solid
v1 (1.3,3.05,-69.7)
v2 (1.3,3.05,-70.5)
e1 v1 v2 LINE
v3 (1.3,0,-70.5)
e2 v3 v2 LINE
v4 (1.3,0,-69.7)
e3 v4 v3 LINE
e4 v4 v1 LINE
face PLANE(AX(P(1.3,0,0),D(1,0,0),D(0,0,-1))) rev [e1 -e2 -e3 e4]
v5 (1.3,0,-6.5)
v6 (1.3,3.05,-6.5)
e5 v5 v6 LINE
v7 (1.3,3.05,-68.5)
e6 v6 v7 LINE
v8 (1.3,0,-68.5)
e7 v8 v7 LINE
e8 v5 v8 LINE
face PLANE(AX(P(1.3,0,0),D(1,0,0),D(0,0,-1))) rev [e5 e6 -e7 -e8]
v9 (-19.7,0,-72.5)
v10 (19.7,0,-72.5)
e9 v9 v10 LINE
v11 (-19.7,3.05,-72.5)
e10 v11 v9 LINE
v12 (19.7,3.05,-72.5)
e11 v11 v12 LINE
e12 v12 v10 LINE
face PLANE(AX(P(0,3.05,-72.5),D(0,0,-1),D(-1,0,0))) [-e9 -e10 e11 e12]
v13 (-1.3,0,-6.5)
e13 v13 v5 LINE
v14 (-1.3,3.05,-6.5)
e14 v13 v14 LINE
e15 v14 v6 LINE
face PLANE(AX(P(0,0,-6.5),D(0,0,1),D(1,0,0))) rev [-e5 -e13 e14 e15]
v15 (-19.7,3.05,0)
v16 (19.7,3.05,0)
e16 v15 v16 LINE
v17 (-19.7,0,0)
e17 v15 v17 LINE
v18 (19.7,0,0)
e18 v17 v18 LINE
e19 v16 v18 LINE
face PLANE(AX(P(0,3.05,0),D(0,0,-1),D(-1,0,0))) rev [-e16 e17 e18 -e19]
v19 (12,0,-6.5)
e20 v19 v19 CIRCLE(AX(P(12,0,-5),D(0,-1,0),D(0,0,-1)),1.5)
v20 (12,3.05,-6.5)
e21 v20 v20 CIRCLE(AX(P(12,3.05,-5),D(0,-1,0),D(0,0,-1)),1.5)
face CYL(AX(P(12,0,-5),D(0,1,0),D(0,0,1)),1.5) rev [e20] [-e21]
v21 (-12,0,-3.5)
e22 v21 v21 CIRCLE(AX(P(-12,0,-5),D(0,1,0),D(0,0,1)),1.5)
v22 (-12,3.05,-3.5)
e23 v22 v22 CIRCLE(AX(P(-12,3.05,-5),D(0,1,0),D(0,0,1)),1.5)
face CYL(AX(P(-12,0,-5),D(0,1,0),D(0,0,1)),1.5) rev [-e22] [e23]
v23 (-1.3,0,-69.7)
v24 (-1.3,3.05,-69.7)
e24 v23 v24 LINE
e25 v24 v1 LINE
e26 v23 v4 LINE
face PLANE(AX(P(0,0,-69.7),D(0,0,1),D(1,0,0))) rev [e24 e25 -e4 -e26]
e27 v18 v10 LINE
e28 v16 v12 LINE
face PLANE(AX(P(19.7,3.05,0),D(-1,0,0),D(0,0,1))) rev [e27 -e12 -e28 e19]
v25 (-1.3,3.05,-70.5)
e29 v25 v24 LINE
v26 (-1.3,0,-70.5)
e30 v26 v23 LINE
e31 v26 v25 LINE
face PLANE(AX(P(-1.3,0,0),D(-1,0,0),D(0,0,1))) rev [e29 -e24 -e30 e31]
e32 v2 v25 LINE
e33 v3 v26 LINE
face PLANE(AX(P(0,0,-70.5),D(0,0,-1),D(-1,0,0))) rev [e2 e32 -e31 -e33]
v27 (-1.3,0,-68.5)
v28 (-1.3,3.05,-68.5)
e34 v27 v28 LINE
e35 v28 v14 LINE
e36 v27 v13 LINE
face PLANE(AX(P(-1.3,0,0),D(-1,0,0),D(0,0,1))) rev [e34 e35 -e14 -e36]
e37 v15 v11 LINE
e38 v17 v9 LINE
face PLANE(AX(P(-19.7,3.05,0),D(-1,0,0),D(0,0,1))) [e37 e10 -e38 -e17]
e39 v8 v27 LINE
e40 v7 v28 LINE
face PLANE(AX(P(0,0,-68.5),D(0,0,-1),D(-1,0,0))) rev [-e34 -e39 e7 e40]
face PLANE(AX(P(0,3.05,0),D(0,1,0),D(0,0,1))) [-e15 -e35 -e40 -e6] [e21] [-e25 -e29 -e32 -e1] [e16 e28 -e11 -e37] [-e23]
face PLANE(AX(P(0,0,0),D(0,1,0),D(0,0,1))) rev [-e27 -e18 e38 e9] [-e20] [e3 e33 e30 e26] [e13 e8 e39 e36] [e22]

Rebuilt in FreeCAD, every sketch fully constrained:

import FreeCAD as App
import Part
import Sketcher

V = App.Vector

doc = App.newDocument("Part")
body = doc.addObject("PartDesign::Body", "Body")

sketch1 = body.newObject("Sketcher::SketchObject", "Sketch")
sketch1.AttachmentSupport = (doc.getObject("XZ_Plane"), [""])
sketch1.MapMode = "FlatFace"
sketch1.addGeometry(Part.LineSegment(V(-20, -72, 0), V(-20, 0, 0)), False)
sketch1.addGeometry(Part.LineSegment(V(-20, 0, 0), V(20, 0, 0)), False)
sketch1.addGeometry(Part.LineSegment(V(20, 0, 0), V(20, -72, 0)), False)
sketch1.addGeometry(Part.LineSegment(V(20, -72, 0), V(-20, -72, 0)), False)
sketch1.addConstraint(Sketcher.Constraint("Coincident", 0, 2, 1, 1))
sketch1.addConstraint(Sketcher.Constraint("Coincident", 1, 2, 2, 1))
sketch1.addConstraint(Sketcher.Constraint("Coincident", 2, 2, 3, 1))
sketch1.addConstraint(Sketcher.Constraint("Coincident", 3, 2, 0, 1))
sketch1.addConstraint(Sketcher.Constraint("Vertical", 0))
sketch1.addConstraint(Sketcher.Constraint("Horizontal", 1))
sketch1.addConstraint(Sketcher.Constraint("Vertical", 2))
sketch1.addConstraint(Sketcher.Constraint("Horizontal", 3))
sketch1.addConstraint(Sketcher.Constraint("Symmetric", 0, 2, 1, 2, -1, 1))
sketch1.addConstraint(Sketcher.Constraint("DistanceX", 1, 1, 1, 2, 39.4))
sketch1.addConstraint(Sketcher.Constraint("DistanceY", 0, 1, 0, 2, 72.5))
pad1 = body.newObject("PartDesign::Pad", "Pad")
pad1.Profile = sketch1
pad1.Length = 3.05
pad1.Reversed = True

sketch2 = body.newObject("Sketcher::SketchObject", "Sketch001")
sketch2.AttachmentSupport = (doc.getObject("XZ_Plane"), [""])
sketch2.MapMode = "FlatFace"
sketch2.AttachmentOffset = App.Placement(V(0, 0, -3.05), App.Rotation())
sketch2.addGeometry(Part.LineSegment(V(-1.3, -70.5, 0), V(-1.3, -69.7, 0)), False)
sketch2.addGeometry(Part.LineSegment(V(-1.3, -69.7, 0), V(1.3, -69.7, 0)), False)
sketch2.addGeometry(Part.LineSegment(V(1.3, -69.7, 0), V(1.3, -70.5, 0)), False)
sketch2.addGeometry(Part.LineSegment(V(1.3, -70.5, 0), V(-1.3, -70.5, 0)), False)
sketch2.addGeometry(Part.LineSegment(V(-1.3, -68.5, 0), V(-1.3, -6.5, 0)), False)
sketch2.addGeometry(Part.LineSegment(V(-1.3, -6.5, 0), V(1.3, -6.5, 0)), False)
sketch2.addGeometry(Part.LineSegment(V(1.3, -6.5, 0), V(1.3, -68.5, 0)), False)
sketch2.addGeometry(Part.LineSegment(V(1.3, -68.5, 0), V(-1.3, -68.5, 0)), False)
sketch2.addConstraint(Sketcher.Constraint("Coincident", 0, 2, 1, 1))
sketch2.addConstraint(Sketcher.Constraint("Coincident", 1, 2, 2, 1))
sketch2.addConstraint(Sketcher.Constraint("Coincident", 2, 2, 3, 1))
sketch2.addConstraint(Sketcher.Constraint("Coincident", 3, 2, 0, 1))
sketch2.addConstraint(Sketcher.Constraint("Coincident", 4, 2, 5, 1))
sketch2.addConstraint(Sketcher.Constraint("Coincident", 5, 2, 6, 1))
sketch2.addConstraint(Sketcher.Constraint("Coincident", 6, 2, 7, 1))
sketch2.addConstraint(Sketcher.Constraint("Coincident", 7, 2, 4, 1))
sketch2.addConstraint(Sketcher.Constraint("Vertical", 0))
sketch2.addConstraint(Sketcher.Constraint("Horizontal", 1))
sketch2.addConstraint(Sketcher.Constraint("Vertical", 2))
sketch2.addConstraint(Sketcher.Constraint("Horizontal", 3))
sketch2.addConstraint(Sketcher.Constraint("Vertical", 4))
sketch2.addConstraint(Sketcher.Constraint("Horizontal", 5))
sketch2.addConstraint(Sketcher.Constraint("Vertical", 6))
sketch2.addConstraint(Sketcher.Constraint("Horizontal", 7))
sketch2.addConstraint(Sketcher.Constraint("Vertical", 3, 2, 4, 2))
sketch2.addConstraint(Sketcher.Constraint("Vertical", 2, 2, 5, 2))
sketch2.addConstraint(Sketcher.Constraint("DistanceY", 4, 1, 4, 2, 62.0))
sketch2.addConstraint(Sketcher.Constraint("DistanceX", 1, 1, 1, 2, 2.6))
sketch2.addConstraint(Sketcher.Constraint("DistanceY", 0, 1, 0, 2, 0.8))
sketch2.addConstraint(Sketcher.Constraint("DistanceY", 3, 2, 4, 2, 64.0))
sketch2.addConstraint(Sketcher.Constraint("DistanceX", 0, 2, -1, 1, 1.3))
sketch2.addConstraint(Sketcher.Constraint("DistanceY", 0, 2, -1, 1, 69.7))
pocket1 = body.newObject("PartDesign::Pocket", "Pocket")
pocket1.Profile = sketch2
pocket1.Type = "ThroughAll"
pocket1.Reversed = True

sketch3 = body.newObject("Sketcher::SketchObject", "Sketch002")
sketch3.AttachmentSupport = (doc.getObject("XZ_Plane"), [""])
sketch3.MapMode = "FlatFace"
sketch3.AttachmentOffset = App.Placement(V(0, 0, -3.05), App.Rotation())
sketch3.addGeometry(Part.Circle(V(-12, -5, 0), V(0, 0, 1), 1.5), False)
sketch3.addGeometry(Part.Circle(V(12, -5, 0), V(0, 0, 1), 1.5), False)
sketch3.addConstraint(Sketcher.Constraint("Equal", 0, 1))
sketch3.addConstraint(Sketcher.Constraint("Symmetric", 0, 3, 1, 3, -2))
sketch3.addConstraint(Sketcher.Constraint("Diameter", 0, 3.0))
sketch3.addConstraint(Sketcher.Constraint("DistanceX", 0, 3, -1, 1, 12.0))
sketch3.addConstraint(Sketcher.Constraint("DistanceY", 0, 3, -1, 1, 5.0))
pocket2 = body.newObject("PartDesign::Pocket", "Pocket001")
pocket2.Profile = sketch3
pocket2.Type = "ThroughAll"
pocket2.Reversed = True

doc.recompute()
